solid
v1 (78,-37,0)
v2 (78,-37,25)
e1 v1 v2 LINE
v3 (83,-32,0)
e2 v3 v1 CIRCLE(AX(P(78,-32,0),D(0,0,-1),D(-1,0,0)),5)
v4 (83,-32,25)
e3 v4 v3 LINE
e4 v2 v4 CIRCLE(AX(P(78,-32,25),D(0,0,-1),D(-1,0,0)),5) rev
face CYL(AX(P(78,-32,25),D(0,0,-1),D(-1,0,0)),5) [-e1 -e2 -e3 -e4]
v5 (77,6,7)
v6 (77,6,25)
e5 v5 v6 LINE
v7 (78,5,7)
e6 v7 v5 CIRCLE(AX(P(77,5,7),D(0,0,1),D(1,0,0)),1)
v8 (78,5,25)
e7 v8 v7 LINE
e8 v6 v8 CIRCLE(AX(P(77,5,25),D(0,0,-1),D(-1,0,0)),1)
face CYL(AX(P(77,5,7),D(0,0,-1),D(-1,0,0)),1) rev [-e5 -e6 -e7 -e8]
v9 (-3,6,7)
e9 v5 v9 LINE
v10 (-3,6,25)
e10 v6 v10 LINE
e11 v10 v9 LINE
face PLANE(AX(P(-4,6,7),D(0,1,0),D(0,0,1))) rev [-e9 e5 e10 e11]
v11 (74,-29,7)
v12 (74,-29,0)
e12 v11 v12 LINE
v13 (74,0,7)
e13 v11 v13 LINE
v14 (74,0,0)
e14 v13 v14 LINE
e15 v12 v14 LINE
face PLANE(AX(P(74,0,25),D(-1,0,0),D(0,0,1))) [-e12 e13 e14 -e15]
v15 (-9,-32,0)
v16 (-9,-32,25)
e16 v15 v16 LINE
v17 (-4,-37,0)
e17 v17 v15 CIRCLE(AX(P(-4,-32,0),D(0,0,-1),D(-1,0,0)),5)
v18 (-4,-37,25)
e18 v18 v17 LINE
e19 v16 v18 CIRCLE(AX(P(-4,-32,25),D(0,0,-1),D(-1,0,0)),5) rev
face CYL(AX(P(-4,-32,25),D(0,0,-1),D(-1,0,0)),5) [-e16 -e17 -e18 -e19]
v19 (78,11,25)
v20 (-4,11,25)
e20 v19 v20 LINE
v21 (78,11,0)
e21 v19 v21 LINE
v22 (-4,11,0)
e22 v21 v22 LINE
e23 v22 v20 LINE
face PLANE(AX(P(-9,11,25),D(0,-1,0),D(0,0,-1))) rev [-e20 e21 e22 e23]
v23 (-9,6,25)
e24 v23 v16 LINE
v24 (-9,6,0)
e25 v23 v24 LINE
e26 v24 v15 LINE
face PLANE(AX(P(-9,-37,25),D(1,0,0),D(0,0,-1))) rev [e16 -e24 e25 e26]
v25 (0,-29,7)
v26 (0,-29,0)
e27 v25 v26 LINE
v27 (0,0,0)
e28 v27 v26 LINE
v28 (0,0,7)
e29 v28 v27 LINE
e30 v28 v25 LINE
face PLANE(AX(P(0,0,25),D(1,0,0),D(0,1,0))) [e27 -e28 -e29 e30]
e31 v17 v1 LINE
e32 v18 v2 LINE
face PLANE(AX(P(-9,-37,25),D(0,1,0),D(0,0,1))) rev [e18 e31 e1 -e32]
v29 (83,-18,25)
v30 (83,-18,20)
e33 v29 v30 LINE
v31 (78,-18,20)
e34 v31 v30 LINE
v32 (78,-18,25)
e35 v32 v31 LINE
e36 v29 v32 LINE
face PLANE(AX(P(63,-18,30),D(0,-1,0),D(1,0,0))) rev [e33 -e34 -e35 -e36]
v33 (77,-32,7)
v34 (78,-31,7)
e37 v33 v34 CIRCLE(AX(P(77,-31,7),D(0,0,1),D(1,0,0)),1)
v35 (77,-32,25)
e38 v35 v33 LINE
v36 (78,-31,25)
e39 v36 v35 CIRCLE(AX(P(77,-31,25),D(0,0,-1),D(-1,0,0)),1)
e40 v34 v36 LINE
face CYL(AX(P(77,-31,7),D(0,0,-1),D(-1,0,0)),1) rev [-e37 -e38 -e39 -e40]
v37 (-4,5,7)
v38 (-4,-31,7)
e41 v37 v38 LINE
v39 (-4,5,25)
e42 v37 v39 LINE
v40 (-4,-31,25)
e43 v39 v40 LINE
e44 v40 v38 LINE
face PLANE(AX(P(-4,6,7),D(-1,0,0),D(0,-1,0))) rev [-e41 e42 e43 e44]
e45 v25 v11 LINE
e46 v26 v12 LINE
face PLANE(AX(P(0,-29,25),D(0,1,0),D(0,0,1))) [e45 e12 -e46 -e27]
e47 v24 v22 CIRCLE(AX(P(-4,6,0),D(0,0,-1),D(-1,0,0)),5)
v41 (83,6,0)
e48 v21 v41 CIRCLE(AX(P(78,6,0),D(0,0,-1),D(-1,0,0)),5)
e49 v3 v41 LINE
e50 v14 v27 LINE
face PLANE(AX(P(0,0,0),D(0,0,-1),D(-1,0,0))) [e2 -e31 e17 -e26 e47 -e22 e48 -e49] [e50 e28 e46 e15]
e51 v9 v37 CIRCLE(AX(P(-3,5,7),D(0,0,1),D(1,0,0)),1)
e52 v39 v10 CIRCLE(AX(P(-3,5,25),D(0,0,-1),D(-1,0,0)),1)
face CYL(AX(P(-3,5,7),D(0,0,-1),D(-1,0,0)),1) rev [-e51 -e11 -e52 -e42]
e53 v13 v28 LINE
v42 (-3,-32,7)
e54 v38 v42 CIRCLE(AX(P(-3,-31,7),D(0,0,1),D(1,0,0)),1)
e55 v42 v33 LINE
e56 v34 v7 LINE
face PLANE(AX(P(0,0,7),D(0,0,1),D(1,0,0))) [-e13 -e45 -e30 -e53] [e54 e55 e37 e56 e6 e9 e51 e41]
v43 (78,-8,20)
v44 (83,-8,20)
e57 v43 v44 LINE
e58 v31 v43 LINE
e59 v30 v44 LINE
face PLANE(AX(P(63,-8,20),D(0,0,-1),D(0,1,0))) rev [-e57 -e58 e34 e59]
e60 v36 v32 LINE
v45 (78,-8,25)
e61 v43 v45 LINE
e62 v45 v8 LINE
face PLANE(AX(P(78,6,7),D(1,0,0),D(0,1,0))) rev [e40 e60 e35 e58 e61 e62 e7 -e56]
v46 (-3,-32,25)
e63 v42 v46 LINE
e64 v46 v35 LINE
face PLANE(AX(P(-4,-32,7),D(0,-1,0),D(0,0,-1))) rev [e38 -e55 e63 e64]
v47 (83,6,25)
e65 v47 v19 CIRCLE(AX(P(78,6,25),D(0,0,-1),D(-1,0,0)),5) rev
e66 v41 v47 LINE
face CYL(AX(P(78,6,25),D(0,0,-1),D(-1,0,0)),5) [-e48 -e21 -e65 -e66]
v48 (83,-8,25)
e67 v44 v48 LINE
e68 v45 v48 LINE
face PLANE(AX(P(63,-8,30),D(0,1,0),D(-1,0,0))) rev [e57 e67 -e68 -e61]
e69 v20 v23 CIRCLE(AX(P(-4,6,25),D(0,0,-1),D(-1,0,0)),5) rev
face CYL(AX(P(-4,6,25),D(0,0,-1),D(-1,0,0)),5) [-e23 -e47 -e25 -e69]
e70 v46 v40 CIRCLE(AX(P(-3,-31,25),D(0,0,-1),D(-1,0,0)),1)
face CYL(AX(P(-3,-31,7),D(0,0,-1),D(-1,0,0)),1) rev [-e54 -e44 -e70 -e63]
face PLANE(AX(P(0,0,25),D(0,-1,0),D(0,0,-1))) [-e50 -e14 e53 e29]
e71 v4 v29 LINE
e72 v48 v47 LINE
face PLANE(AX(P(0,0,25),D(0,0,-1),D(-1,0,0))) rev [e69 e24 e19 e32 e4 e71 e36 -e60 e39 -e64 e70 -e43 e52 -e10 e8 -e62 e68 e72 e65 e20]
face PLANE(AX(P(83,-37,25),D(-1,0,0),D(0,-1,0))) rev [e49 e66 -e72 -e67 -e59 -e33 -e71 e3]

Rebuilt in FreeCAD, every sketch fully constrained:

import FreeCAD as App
import Part
import Sketcher


def edges_at(feature, points):
    """Names of the edges that pass closest to the given points."""
    edges = feature.Shape.Edges
    near = lambda p: min(range(len(edges)), key=lambda i: edges[i].distToShape(Part.Vertex(*p))[0])
    return sorted({f"Edge{near(p) + 1}" for p in points})

doc = App.newDocument("Part")
params = doc.addObject("Spreadsheet::Sheet", "Params")
for row, (alias, value) in enumerate([
    ("sketch1_width", "92 mm"),
    ("sketch1_width2", "74 mm"),
    ("sketch1_height", "48 mm"),
    ("sketch1_height2", "29 mm"),
    ("pad1_length", "25 mm"),
    ("sketch2_width", "82 mm"),
    ("sketch2_height", "38 mm"),
    ("pocket1_length", "18 mm"),
    ("fillet_radius", "5 mm"),
    ("fillet2_radius", "1 mm"),
    ("sketch3_width", "10 mm"),
    ("pocket2_length", "20 mm"),
], start=1):
    params.set(f"A{row}", alias)
    params.set(f"B{row}", "=" + value)
    params.setAlias(f"B{row}", alias)

body = doc.addObject("PartDesign::Body", "Body")

# Sketch on XY plane
sketch1 = body.newObject("Sketcher::SketchObject", "Sketch")
sketch1.AttachmentSupport = (doc.getObject("XY_Plane"), [""])
sketch1.MapMode = "FlatFace"
sketch1.addGeometry([
    Part.LineSegment(App.Vector(-9, 11, 0), App.Vector(-9, -37, 0)),  # 0
    Part.LineSegment(App.Vector(-9, -37, 0), App.Vector(83, -37, 0)),  # 1
    Part.LineSegment(App.Vector(83, -37, 0), App.Vector(83, 11, 0)),  # 2
    Part.LineSegment(App.Vector(83, 11, 0), App.Vector(-9, 11, 0)),  # 3
    Part.LineSegment(App.Vector(74, -29, 0), App.Vector(0, -29, 0)),  # 4
    Part.LineSegment(App.Vector(0, -29, 0), App.Vector(0, 0, 0)),  # 5
    Part.LineSegment(App.Vector(0, 0, 0), App.Vector(74, 0, 0)),  # 6
    Part.LineSegment(App.Vector(74, 0, 0), App.Vector(74, -29, 0)),  # 7
], False)
sketch1.addConstraint([
    Sketcher.Constraint("Coincident", 0, 2, 1, 1),
    Sketcher.Constraint("Coincident", 1, 2, 2, 1),
    Sketcher.Constraint("Coincident", 2, 2, 3, 1),
    Sketcher.Constraint("Coincident", 3, 2, 0, 1),
    Sketcher.Constraint("Coincident", 4, 2, 5, 1),
    Sketcher.Constraint("Coincident", 5, 2, 6, 1),
    Sketcher.Constraint("Coincident", 6, 2, 7, 1),
    Sketcher.Constraint("Coincident", 7, 2, 4, 1),
    Sketcher.Constraint("Vertical", 0),
    Sketcher.Constraint("Horizontal", 1),
    Sketcher.Constraint("Vertical", 2),
    Sketcher.Constraint("Horizontal", 3),
    Sketcher.Constraint("Horizontal", 4),
    Sketcher.Constraint("Vertical", 5),
    Sketcher.Constraint("Horizontal", 6),
    Sketcher.Constraint("Vertical", 7),
    Sketcher.Constraint("Coincident", 5, 2, -1, 1),
    Sketcher.Constraint("DistanceX", 1, 1, 1, 2, 92.0),
    Sketcher.Constraint("DistanceX", 4, 2, 4, 1, 74.0),
    Sketcher.Constraint("DistanceY", 0, 2, 0, 1, 48.0),
    Sketcher.Constraint("DistanceY", 5, 1, 5, 2, 29.0),
    Sketcher.Constraint("DistanceX", 0, 2, -1, 1, 9.0),
    Sketcher.Constraint("DistanceY", 0, 2, -1, 1, 37.0),
])
sketch1.setExpression("Constraints[17]", "Params.sketch1_width")
sketch1.setExpression("Constraints[18]", "Params.sketch1_width2")
sketch1.setExpression("Constraints[19]", "Params.sketch1_height")
sketch1.setExpression("Constraints[20]", "Params.sketch1_height2")
pad1 = body.newObject("PartDesign::Pad", "Pad")
pad1.Profile = sketch1
pad1.setExpression("Length", "Params.pad1_length")

# Sketch on XY plane
sketch2 = body.newObject("Sketcher::SketchObject", "Sketch001")
sketch2.AttachmentSupport = (doc.getObject("XY_Plane"), [""])
sketch2.MapMode = "FlatFace"
sketch2.AttachmentOffset = App.Placement(App.Vector(0, 0, 25), App.Rotation())
sketch2.addGeometry([
    Part.LineSegment(App.Vector(-4, 6, 0), App.Vector(-4, -32, 0)),
    Part.LineSegment(App.Vector(-4, -32, 0), App.Vector(78, -32, 0)),
    Part.LineSegment(App.Vector(78, -32, 0), App.Vector(78, 6, 0)),
    Part.LineSegment(App.Vector(78, 6, 0), App.Vector(-4, 6, 0)),
], False)
sketch2.addConstraint([
    Sketcher.Constraint("Coincident", 0, 2, 1, 1),
    Sketcher.Constraint("Coincident", 1, 2, 2, 1),
    Sketcher.Constraint("Coincident", 2, 2, 3, 1),
    Sketcher.Constraint("Coincident", 3, 2, 0, 1),
    Sketcher.Constraint("Vertical", 0),
    Sketcher.Constraint("Horizontal", 1),
    Sketcher.Constraint("Vertical", 2),
    Sketcher.Constraint("Horizontal", 3),
    Sketcher.Constraint("DistanceX", 1, 1, 1, 2, 82.0),
    Sketcher.Constraint("DistanceY", 0, 2, 0, 1, 38.0),
    Sketcher.Constraint("DistanceX", 0, 2, -1, 1, 4.0),
    Sketcher.Constraint("DistanceY", 0, 2, -1, 1, 32.0),
])
sketch2.setExpression("Constraints[8]", "Params.sketch2_width")
sketch2.setExpression("Constraints[9]", "Params.sketch2_height")
pocket1 = body.newObject("PartDesign::Pocket", "Pocket")
pocket1.Profile = sketch2
pocket1.setExpression("Length", "Params.pocket1_length")
doc.recompute()

fillet = body.newObject("PartDesign::Fillet", "Fillet")
fillet.Base = (pocket1, edges_at(pocket1, [
    (-9, 11, 12.5),
    (83, 11, 12.5),
    (83, -37, 12.5),
    (-9, -37, 12.5),
]))
fillet.setExpression("Radius", "Params.fillet_radius")
doc.recompute()

fillet2 = body.newObject("PartDesign::Fillet", "Fillet001")
fillet2.Base = (fillet, edges_at(fillet, [
    (-4, -32, 16),
    (-4, 6, 16),
    (78, 6, 16),
    (78, -32, 16),
]))
fillet2.setExpression("Radius", "Params.fillet2_radius")

# Sketch on YZ plane
sketch3 = body.newObject("Sketcher::SketchObject", "Sketch002")
sketch3.AttachmentSupport = (doc.getObject("YZ_Plane"), [""])
sketch3.MapMode = "FlatFace"
sketch3.AttachmentOffset = App.Placement(App.Vector(0, 0, 83), App.Rotation())
sketch3.addGeometry([
    Part.LineSegment(App.Vector(-8, 30, 0), App.Vector(-18, 30, 0)),
    Part.LineSegment(App.Vector(-18, 30, 0), App.Vector(-18, 20, 0)),
    Part.LineSegment(App.Vector(-18, 20, 0), App.Vector(-8, 20, 0)),
    Part.LineSegment(App.Vector(-8, 20, 0), App.Vector(-8, 30, 0)),
], False)
sketch3.addConstraint([
    Sketcher.Constraint("Coincident", 0, 2, 1, 1),
    Sketcher.Constraint("Coincident", 1, 2, 2, 1),
    Sketcher.Constraint("Coincident", 2, 2, 3, 1),
    Sketcher.Constraint("Coincident", 3, 2, 0, 1),
    Sketcher.Constraint("Horizontal", 0),
    Sketcher.Constraint("Vertical", 1),
    Sketcher.Constraint("Horizontal", 2),
    Sketcher.Constraint("Vertical", 3),
    Sketcher.Constraint("Equal", 2, 1),
    Sketcher.Constraint("DistanceX", 0, 2, 0, 1, 10.0),
    Sketcher.Constraint("DistanceX", 0, 2, -1, 1, 18.0),
    Sketcher.Constraint("DistanceY", -1, 1, 0, 2, 30.0),
])
sketch3.setExpression("Constraints[9]", "Params.sketch3_width")
pocket2 = body.newObject("PartDesign::Pocket", "Pocket001")
pocket2.Profile = sketch3
pocket2.setExpression("Length", "Params.pocket2_length")

doc.recompute()
